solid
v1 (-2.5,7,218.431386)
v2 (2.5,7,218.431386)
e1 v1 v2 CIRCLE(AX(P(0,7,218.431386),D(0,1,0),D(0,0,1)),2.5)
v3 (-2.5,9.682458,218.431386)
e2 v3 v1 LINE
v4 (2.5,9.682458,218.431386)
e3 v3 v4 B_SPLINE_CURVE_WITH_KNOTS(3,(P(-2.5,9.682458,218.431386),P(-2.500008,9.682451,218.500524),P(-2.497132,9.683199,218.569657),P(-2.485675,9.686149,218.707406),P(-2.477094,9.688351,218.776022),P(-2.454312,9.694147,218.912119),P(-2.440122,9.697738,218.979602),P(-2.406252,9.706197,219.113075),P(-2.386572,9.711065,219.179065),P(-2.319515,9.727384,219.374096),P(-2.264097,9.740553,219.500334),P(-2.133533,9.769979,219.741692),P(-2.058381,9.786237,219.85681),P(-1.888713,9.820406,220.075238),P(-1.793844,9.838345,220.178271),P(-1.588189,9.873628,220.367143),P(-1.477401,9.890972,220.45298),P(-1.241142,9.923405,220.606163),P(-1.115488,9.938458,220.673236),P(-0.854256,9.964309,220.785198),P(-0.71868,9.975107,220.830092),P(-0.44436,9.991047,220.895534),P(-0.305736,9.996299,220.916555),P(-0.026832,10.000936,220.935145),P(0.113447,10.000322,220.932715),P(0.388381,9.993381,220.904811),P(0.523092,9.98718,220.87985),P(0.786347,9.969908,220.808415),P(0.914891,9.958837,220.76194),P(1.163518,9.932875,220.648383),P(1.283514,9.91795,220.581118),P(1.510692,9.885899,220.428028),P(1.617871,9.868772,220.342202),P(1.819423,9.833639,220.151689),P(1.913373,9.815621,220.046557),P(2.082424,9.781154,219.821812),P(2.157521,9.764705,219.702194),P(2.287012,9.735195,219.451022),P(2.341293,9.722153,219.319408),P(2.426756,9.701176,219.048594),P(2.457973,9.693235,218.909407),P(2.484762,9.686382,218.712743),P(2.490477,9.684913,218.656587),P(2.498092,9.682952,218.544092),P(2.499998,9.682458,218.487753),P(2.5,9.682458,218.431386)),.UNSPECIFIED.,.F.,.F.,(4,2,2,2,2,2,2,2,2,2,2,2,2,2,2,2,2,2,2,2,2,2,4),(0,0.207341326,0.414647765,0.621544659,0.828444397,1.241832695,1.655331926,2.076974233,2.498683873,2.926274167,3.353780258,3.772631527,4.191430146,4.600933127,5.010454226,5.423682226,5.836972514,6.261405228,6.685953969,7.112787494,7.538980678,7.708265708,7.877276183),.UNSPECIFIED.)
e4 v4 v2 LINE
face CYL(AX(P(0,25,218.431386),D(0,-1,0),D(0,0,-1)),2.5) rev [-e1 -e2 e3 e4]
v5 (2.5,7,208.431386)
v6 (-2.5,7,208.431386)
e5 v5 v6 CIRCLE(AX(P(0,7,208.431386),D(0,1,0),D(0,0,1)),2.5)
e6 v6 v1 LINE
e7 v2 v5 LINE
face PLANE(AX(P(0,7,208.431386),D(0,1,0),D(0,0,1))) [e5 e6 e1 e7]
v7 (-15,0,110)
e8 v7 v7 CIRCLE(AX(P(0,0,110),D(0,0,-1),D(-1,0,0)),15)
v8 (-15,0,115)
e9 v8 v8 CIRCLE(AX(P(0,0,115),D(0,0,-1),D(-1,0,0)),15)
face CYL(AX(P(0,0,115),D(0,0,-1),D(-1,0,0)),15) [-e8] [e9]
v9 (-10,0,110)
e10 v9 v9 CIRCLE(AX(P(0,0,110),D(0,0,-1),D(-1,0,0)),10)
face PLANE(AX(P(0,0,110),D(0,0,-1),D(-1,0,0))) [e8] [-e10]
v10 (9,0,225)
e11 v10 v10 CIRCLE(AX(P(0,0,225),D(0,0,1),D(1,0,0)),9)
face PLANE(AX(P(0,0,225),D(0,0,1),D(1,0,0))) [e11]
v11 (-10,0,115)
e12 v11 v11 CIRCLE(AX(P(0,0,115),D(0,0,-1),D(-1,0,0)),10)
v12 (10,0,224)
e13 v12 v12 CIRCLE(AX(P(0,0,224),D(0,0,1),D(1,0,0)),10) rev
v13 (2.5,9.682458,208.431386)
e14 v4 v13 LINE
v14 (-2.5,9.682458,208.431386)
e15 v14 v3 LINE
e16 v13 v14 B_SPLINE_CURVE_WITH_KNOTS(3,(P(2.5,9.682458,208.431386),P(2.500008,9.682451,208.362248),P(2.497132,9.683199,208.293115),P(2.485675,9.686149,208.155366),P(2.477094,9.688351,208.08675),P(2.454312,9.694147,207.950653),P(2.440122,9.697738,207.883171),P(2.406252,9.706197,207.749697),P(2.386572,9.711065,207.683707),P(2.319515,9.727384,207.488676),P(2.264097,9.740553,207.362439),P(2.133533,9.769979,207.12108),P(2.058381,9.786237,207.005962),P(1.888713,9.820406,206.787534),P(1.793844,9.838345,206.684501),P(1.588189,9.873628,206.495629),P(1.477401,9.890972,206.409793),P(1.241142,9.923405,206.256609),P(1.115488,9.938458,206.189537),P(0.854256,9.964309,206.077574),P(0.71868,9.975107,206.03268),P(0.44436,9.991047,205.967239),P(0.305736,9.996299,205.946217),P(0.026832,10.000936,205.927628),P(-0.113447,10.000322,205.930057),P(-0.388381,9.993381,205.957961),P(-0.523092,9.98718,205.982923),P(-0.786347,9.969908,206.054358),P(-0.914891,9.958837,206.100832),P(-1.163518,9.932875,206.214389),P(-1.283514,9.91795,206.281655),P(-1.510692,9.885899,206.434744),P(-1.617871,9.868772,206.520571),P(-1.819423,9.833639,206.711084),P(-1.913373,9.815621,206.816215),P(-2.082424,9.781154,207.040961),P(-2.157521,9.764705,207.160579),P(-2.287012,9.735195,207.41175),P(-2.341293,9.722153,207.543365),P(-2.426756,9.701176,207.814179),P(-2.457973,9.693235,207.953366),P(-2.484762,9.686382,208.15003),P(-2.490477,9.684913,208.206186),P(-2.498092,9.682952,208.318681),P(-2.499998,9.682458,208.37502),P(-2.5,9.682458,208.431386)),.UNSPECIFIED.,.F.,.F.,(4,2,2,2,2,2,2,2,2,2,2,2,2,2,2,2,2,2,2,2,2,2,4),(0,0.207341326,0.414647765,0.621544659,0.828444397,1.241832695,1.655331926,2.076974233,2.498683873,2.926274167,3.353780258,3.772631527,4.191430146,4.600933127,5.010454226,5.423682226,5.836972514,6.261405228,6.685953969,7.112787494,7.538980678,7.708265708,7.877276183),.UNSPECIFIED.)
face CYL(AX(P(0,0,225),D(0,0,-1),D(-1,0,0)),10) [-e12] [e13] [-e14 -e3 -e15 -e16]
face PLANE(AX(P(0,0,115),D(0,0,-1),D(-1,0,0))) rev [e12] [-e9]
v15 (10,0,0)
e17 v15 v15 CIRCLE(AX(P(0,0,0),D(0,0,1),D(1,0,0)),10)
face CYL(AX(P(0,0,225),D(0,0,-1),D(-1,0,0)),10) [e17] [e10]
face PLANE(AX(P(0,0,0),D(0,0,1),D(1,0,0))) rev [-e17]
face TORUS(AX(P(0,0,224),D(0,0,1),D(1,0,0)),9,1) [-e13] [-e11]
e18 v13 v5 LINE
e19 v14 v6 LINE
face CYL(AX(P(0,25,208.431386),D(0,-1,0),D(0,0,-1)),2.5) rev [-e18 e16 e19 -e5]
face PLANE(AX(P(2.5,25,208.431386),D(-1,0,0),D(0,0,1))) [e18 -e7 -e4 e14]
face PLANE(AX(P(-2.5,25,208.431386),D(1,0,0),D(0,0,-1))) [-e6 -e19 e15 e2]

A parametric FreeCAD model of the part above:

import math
import FreeCAD as App
import Part
import Sketcher
from FreeCAD import Vector
Q = App.Units.Quantity


def edges_at(feature, points):
    """Names of the edges that pass closest to the given points."""
    edges = feature.Shape.Edges
    near = lambda p: min(range(len(edges)), key=lambda i: edges[i].distToShape(Part.Vertex(*p))[0])
    return sorted({f"Edge{near(p) + 1}" for p in points})

doc = App.newDocument("Part")
body = doc.addObject("PartDesign::Body", "Body")

sketch1 = body.newObject("Sketcher::SketchObject", "Sketch")
sketch1.AttachmentSupport = (doc.getObject("XY_Plane"), [""])
sketch1.MapMode = "FlatFace"
sketch1.addGeometry(Part.Circle(Vector(0, 0, 0), Vector(0, 0, 1), 10), False)
sketch1.addConstraint([
    Sketcher.Constraint("Coincident", 0, 3, -1, 1),
    Sketcher.Constraint("Diameter", 0, Q("20 mm")),
])
pad1 = body.newObject("PartDesign::Pad", "Pad")
pad1.Profile = sketch1
pad1.Length = 225

sketch2 = body.newObject("Sketcher::SketchObject", "Sketch001")
sketch2.AttachmentSupport = (doc.getObject("XY_Plane"), [""])
sketch2.MapMode = "FlatFace"
sketch2.AttachmentOffset = App.Placement(Vector(0, 0, 110), App.Rotation())
sketch2.addGeometry(Part.Circle(Vector(0, 0, 0), Vector(0, 0, 1), 15), False)
sketch2.addConstraint([
    Sketcher.Constraint("Coincident", 0, 3, -1, 1),
    Sketcher.Constraint("Diameter", 0, Q("30 mm")),
])
pad2 = body.newObject("PartDesign::Pad", "Pad001")
pad2.Profile = sketch2
pad2.Length = 5

sketch3 = body.newObject("Sketcher::SketchObject", "Sketch002")
sketch3.AttachmentSupport = (doc.getObject("XZ_Plane"), [""])
sketch3.MapMode = "FlatFace"
sketch3.AttachmentOffset = App.Placement(Vector(0, 0, -7), App.Rotation())
sketch3.addGeometry([
    Part.LineSegment(Vector(2.5, 218.4, 0), Vector(2.5, 208.4, 0)),
    Part.ArcOfCircle(Part.Circle(Vector(0, 208.4, 0), Vector(0, 0, 1), 2.5), math.radians(180), math.radians(360)),
    Part.LineSegment(Vector(-2.5, 208.4, 0), Vector(-2.5, 218.4, 0)),
    Part.ArcOfCircle(Part.Circle(Vector(0, 218.4, 0), Vector(0, 0, 1), 2.5), math.radians(0), math.radians(180)),
], False)
sketch3.addConstraint([
    Sketcher.Constraint("Tangent", 0, 2, 1, 2),
    Sketcher.Constraint("Tangent", 1, 1, 2, 1),
    Sketcher.Constraint("Tangent", 2, 2, 3, 2),
    Sketcher.Constraint("Tangent", 3, 1, 0, 1),
    Sketcher.Constraint("Vertical", 0),
    Sketcher.Constraint("Vertical", 2),
    Sketcher.Constraint("PointOnObject", 1, 3, -2),
    Sketcher.Constraint("Radius", 1, Q("2.5 mm")),
    Sketcher.Constraint("DistanceY", 0, 2, 0, 1, Q("10 mm")),
    Sketcher.Constraint("DistanceY", -1, 1, 1, 3, Q("208.431386 mm")),
])
pocket1 = body.newObject("PartDesign::Pocket", "Pocket")
pocket1.Profile = sketch3
pocket1.Length = 18
doc.recompute()

fillet = body.newObject("PartDesign::Fillet", "Fillet")
fillet.Base = (pocket1, edges_at(pocket1, [(-10, 0, 225)]))
fillet.Radius = 1

doc.recompute()
